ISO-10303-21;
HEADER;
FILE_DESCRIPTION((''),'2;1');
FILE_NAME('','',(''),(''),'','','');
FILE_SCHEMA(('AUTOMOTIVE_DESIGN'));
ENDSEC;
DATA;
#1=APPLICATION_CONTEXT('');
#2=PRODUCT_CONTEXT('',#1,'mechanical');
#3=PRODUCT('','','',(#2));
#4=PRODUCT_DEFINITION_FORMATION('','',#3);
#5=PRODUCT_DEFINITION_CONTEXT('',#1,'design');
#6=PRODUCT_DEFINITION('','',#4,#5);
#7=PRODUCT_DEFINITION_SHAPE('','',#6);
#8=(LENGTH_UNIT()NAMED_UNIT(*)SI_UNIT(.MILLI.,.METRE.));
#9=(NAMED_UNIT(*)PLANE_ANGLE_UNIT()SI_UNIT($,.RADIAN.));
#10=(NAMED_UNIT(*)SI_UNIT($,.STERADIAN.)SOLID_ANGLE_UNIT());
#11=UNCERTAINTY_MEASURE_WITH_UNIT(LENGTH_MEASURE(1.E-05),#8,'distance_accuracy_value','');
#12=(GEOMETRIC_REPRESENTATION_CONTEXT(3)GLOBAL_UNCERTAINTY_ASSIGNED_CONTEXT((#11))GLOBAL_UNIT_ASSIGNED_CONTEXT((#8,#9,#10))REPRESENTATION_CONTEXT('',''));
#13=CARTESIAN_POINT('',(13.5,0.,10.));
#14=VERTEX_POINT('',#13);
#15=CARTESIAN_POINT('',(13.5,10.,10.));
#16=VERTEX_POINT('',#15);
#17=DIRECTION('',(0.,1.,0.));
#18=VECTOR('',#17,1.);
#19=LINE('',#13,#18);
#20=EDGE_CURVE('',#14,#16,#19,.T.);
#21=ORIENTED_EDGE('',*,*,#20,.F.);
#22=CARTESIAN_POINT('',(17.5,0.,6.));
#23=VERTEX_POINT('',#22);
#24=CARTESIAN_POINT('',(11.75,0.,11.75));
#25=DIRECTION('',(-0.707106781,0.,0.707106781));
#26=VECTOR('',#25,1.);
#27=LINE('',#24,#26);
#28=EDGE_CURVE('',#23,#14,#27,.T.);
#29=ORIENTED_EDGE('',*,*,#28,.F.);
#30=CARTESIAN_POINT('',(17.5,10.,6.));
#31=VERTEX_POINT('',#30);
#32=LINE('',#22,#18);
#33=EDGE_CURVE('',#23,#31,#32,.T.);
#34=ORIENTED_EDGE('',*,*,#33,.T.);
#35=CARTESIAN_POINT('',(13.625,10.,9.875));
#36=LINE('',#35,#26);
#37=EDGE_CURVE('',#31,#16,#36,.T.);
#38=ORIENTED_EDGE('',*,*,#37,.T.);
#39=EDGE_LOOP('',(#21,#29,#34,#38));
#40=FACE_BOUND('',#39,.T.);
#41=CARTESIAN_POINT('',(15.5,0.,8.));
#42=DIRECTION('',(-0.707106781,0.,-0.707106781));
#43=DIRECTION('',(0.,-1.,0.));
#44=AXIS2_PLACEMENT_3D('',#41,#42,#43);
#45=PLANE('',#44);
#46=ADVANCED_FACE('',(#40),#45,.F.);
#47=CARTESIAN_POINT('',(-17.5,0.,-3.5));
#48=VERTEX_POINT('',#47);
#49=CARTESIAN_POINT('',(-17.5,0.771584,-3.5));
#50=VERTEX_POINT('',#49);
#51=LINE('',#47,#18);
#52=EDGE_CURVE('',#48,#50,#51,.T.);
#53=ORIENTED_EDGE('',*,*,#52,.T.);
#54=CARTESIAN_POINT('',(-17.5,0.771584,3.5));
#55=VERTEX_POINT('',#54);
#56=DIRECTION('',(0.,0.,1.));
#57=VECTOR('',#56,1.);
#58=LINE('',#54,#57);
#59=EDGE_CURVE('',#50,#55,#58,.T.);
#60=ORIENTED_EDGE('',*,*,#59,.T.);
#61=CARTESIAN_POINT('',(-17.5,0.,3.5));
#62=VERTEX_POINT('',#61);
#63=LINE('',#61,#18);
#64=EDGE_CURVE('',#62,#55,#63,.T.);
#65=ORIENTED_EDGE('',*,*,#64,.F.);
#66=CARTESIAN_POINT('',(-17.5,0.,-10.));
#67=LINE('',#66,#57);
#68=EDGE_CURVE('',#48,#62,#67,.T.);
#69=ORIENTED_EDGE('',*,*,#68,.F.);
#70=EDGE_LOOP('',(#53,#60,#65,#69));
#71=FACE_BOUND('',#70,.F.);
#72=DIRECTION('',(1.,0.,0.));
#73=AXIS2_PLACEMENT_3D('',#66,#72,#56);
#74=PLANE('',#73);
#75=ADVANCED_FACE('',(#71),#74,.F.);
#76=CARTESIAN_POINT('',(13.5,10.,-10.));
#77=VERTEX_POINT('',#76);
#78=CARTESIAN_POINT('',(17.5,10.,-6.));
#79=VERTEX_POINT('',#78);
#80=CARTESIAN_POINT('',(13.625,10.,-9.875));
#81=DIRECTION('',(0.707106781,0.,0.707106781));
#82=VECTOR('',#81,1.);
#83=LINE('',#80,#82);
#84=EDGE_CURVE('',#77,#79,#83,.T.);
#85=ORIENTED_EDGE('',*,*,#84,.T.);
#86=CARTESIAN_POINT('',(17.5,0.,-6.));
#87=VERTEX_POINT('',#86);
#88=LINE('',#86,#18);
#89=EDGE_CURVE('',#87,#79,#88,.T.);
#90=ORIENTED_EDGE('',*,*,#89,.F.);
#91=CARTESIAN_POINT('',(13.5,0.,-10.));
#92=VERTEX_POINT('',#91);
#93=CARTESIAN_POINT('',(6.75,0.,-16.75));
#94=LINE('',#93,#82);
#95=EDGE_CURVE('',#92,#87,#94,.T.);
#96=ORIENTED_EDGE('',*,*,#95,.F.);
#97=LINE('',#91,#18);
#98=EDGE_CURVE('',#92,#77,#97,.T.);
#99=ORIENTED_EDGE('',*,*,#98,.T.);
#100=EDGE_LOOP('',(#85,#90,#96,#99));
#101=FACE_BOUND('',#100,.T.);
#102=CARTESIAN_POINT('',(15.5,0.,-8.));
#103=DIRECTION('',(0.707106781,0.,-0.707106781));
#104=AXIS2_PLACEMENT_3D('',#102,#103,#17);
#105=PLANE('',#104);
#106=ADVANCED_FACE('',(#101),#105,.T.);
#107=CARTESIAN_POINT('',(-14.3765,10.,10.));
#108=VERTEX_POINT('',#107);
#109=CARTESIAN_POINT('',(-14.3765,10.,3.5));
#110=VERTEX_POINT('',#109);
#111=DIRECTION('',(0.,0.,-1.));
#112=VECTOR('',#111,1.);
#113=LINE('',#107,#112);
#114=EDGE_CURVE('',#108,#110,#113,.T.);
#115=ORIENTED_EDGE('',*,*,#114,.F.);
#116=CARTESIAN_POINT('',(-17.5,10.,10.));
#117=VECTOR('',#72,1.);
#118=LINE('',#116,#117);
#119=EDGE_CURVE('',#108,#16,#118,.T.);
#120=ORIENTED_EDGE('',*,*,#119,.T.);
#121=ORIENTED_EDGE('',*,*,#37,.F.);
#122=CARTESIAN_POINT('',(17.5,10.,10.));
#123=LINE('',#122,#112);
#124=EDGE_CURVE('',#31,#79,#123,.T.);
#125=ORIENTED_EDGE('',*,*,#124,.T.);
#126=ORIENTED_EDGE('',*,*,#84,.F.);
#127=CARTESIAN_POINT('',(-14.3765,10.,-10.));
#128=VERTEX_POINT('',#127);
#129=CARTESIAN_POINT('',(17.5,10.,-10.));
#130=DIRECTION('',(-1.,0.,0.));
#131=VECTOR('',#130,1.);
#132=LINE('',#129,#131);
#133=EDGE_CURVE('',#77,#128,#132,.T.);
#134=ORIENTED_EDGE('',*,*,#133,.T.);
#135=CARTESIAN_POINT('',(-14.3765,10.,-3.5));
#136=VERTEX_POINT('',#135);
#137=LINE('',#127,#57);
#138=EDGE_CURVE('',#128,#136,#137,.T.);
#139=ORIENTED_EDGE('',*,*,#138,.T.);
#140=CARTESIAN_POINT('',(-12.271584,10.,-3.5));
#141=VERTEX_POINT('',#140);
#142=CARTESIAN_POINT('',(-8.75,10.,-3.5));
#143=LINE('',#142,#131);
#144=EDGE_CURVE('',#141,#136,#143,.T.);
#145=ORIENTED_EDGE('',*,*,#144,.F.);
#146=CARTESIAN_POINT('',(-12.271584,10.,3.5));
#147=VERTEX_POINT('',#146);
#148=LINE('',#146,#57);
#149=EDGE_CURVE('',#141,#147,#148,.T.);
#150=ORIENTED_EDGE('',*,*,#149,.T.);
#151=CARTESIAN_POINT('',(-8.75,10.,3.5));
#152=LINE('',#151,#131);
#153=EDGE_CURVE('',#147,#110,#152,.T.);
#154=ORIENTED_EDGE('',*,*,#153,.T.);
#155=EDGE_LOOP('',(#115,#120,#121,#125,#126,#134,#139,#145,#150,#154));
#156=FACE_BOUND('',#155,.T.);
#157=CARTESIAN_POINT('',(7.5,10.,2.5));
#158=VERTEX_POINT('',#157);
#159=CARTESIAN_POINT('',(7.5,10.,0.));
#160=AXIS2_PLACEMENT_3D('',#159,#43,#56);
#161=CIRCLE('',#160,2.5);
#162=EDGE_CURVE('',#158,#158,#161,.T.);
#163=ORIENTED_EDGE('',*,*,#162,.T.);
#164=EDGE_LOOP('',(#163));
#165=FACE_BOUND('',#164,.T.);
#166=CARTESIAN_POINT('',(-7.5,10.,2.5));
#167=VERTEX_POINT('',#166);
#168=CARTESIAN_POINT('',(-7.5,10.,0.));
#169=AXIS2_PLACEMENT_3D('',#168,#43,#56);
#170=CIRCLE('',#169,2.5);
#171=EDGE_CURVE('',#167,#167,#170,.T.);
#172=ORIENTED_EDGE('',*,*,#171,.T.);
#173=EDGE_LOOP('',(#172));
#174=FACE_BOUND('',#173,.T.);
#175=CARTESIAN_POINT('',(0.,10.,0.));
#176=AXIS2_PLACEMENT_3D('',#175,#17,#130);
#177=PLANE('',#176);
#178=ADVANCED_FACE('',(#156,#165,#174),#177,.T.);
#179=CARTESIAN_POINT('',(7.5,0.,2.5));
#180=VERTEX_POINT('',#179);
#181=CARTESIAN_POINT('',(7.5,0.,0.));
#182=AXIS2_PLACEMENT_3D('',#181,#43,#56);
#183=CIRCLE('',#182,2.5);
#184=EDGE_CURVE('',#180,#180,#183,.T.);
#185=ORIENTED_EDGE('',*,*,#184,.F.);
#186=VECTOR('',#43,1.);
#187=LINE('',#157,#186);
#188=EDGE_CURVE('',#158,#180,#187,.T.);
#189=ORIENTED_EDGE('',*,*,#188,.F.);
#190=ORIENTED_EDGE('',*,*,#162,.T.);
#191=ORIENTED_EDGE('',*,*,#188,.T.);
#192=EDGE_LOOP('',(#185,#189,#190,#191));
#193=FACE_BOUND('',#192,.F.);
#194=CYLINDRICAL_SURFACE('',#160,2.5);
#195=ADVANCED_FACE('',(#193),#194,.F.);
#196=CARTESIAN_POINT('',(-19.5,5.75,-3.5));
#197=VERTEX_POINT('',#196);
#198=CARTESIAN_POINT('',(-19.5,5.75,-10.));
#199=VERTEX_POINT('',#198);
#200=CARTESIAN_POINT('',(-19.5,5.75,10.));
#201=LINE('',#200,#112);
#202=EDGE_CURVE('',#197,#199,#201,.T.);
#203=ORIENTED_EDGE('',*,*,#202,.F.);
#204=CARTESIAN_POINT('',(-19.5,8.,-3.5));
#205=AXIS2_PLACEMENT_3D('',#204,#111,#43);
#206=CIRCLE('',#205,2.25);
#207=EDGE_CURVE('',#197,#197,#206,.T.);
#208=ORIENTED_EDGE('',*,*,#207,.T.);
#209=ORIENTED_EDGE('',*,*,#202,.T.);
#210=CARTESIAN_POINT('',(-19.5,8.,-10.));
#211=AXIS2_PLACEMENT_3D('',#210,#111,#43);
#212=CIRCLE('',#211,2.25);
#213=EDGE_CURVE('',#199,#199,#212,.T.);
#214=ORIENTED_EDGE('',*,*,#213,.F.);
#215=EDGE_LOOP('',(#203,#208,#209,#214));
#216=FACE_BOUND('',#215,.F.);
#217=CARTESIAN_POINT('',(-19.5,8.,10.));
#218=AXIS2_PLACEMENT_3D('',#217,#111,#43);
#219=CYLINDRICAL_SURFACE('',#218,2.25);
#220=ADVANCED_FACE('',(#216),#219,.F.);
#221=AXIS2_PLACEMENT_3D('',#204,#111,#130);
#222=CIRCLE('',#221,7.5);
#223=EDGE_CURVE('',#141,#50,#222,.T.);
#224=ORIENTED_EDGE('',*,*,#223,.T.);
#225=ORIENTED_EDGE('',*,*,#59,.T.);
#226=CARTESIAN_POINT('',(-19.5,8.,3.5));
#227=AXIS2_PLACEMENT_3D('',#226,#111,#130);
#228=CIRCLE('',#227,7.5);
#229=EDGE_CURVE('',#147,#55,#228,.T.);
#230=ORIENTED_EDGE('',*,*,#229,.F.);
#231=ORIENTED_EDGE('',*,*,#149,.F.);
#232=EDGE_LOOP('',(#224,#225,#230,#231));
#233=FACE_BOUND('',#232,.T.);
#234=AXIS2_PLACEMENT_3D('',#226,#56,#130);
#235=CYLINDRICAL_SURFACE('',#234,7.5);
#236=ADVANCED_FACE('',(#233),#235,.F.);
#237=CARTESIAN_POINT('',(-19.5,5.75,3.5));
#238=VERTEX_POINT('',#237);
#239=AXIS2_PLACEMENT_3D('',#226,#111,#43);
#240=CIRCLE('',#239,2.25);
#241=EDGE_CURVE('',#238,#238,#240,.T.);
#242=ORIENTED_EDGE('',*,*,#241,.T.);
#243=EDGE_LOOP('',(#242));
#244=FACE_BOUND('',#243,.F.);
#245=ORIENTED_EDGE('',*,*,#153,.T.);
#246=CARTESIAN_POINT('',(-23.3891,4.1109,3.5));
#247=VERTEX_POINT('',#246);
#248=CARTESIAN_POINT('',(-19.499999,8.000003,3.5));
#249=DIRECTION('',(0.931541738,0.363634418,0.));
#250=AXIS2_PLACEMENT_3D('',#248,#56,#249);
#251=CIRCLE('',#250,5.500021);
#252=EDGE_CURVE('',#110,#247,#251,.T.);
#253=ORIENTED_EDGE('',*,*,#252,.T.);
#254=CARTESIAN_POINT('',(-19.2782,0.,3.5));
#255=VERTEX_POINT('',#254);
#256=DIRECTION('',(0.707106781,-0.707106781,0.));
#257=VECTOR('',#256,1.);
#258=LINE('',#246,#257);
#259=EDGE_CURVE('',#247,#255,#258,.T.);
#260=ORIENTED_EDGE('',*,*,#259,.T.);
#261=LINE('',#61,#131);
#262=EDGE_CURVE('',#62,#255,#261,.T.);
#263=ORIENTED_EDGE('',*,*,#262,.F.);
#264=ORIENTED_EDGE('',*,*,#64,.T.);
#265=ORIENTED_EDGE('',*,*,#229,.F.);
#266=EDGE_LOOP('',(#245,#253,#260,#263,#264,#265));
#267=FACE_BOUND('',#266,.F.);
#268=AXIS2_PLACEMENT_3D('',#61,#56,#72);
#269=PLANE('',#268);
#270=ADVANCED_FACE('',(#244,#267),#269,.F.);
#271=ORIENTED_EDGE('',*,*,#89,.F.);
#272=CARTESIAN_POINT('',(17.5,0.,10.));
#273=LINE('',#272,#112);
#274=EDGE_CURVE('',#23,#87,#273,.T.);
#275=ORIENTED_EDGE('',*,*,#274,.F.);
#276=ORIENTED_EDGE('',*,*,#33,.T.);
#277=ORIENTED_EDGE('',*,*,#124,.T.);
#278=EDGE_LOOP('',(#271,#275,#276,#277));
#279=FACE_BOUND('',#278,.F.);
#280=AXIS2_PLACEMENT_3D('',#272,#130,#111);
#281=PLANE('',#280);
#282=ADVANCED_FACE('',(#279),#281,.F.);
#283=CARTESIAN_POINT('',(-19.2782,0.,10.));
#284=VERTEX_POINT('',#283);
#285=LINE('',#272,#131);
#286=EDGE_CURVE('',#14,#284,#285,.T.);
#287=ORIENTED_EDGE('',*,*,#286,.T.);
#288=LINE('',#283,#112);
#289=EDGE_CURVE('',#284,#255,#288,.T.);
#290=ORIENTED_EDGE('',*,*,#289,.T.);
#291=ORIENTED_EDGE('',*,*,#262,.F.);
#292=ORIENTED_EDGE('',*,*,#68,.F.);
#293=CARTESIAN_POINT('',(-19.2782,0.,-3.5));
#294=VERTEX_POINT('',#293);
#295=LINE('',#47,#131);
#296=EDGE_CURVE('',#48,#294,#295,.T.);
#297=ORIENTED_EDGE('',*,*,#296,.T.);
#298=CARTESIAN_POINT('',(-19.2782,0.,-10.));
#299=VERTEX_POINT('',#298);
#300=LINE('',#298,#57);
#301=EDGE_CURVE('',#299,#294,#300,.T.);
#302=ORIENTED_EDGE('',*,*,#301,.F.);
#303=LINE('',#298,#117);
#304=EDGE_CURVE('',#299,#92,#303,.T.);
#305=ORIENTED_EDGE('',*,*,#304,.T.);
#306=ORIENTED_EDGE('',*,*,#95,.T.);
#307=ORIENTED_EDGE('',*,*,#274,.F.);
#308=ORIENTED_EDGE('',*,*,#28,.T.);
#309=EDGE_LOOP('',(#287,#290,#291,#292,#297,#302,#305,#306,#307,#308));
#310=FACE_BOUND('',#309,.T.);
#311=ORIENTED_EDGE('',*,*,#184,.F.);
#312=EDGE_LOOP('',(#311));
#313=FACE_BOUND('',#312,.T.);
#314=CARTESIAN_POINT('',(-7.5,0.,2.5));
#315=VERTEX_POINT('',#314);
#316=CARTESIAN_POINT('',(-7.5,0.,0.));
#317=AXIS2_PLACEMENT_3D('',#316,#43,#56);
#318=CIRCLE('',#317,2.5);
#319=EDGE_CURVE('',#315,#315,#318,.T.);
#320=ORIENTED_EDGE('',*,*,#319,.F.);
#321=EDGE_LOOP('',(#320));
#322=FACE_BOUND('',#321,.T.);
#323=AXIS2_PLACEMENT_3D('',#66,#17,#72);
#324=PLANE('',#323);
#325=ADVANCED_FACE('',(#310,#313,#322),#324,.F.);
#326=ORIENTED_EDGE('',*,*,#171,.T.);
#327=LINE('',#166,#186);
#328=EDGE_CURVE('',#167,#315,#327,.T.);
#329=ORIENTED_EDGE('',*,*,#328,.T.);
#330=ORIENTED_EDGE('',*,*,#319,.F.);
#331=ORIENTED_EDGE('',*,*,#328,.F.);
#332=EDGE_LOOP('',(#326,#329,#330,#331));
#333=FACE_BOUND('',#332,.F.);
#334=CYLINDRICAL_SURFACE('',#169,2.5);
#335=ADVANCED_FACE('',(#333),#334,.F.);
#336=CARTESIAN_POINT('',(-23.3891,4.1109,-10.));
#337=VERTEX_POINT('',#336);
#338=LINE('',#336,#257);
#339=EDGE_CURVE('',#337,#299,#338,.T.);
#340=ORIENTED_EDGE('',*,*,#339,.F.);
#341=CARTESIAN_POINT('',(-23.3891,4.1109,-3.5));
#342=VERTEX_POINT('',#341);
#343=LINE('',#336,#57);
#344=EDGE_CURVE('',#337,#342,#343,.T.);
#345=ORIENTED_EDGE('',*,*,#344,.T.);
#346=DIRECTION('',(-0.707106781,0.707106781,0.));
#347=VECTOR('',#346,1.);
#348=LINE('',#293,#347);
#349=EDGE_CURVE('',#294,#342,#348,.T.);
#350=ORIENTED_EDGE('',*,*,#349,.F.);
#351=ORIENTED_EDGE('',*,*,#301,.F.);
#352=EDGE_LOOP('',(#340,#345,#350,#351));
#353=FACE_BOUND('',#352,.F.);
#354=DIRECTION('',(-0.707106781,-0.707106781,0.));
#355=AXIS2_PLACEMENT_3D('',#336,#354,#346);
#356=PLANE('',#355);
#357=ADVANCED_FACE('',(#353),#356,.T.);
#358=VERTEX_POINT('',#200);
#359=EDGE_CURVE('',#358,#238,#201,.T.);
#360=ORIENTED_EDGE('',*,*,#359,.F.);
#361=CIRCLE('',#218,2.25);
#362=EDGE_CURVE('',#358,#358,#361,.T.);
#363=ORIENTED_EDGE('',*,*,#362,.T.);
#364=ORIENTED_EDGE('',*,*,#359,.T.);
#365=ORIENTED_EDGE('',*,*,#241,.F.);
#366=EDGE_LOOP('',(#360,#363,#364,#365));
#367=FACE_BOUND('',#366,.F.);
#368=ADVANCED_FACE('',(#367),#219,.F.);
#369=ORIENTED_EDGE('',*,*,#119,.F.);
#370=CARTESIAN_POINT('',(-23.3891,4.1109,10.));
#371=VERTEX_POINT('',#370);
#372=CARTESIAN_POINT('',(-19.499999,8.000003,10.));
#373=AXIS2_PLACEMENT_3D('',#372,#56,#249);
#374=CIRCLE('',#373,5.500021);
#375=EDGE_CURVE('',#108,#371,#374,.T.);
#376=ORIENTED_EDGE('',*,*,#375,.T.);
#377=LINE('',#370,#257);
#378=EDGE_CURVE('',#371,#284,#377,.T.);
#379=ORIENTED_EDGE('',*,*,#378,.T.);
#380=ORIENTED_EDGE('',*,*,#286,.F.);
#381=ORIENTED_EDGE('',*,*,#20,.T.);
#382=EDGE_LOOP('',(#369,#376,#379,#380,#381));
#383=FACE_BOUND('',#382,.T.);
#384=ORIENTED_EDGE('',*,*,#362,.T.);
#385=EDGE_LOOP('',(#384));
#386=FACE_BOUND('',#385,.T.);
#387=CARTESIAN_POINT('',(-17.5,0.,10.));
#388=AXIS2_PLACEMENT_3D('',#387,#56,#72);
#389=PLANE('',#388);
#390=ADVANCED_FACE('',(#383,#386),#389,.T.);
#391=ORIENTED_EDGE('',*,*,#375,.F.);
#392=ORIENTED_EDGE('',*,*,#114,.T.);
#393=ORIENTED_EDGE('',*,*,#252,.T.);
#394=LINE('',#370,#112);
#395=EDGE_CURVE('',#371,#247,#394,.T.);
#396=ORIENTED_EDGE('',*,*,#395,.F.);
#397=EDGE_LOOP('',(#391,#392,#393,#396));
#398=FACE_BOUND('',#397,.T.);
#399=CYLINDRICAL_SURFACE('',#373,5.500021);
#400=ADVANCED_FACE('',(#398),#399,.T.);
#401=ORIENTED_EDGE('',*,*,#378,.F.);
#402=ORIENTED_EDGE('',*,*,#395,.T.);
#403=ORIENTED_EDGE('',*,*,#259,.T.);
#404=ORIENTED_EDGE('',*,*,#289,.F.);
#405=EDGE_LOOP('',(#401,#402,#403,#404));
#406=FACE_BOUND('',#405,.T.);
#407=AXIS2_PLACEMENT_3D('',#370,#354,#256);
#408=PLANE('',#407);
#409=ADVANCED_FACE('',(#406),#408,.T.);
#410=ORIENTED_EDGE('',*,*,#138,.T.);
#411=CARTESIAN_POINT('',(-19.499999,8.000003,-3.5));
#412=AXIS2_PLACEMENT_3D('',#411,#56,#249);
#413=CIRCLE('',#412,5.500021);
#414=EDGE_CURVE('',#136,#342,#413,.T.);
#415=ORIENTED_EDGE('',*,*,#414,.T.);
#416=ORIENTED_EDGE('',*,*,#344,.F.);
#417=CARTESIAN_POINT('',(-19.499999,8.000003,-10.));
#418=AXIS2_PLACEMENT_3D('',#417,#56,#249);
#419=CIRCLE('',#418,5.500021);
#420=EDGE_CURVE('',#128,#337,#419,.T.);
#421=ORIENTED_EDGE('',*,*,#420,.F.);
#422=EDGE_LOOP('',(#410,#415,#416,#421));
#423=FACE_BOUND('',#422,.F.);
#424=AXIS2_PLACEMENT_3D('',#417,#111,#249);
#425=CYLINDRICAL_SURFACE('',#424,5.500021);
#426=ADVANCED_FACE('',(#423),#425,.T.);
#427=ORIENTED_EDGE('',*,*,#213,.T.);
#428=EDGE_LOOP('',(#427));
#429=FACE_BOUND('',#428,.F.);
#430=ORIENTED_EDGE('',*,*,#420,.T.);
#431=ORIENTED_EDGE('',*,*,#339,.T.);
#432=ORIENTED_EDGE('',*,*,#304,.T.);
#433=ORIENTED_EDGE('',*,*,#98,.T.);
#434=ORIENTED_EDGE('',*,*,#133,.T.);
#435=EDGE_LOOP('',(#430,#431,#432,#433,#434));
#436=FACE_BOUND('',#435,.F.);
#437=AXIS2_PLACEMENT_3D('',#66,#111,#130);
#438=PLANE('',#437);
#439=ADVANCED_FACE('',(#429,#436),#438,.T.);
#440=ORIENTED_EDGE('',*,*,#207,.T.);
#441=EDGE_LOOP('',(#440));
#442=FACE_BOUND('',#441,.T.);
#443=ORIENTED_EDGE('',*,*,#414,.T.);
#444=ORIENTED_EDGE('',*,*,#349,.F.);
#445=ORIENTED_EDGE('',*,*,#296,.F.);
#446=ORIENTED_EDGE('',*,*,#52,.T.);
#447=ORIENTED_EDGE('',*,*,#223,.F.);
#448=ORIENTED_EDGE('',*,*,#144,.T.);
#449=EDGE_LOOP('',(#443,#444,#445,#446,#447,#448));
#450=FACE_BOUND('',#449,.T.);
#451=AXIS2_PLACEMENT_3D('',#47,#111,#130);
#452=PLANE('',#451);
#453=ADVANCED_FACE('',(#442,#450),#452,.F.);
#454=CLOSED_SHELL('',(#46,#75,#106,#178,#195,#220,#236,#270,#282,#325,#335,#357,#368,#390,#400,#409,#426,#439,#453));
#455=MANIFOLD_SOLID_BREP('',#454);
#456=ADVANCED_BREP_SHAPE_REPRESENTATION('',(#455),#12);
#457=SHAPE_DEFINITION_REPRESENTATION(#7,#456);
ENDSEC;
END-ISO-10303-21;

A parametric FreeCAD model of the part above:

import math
import FreeCAD as App
import Part
import Sketcher
Q = App.Units.Quantity


def edges_at(feature, points):
    """Names of the edges that pass closest to the given points."""
    edges = feature.Shape.Edges
    near = lambda p: min(range(len(edges)), key=lambda i: edges[i].distToShape(Part.Vertex(*p))[0])
    return sorted({f"Edge{near(p) + 1}" for p in points})


def add_polygon(sketch, points):
    """Adds a closed chain of lines whose ends are joined by coincident constraints."""
    first, n = sketch.GeometryCount, len(points)
    for a, b in zip(points, points[1:] + points[:1]):
        sketch.addGeometry(Part.LineSegment(App.Vector(*a, 0), App.Vector(*b, 0)), False)
    for i in range(n):
        sketch.addConstraint(Sketcher.Constraint("Coincident", first + i, 2, first + (i + 1) % n, 1))

doc = App.newDocument("Part")
body = doc.addObject("PartDesign::Body", "Body")

sketch1 = body.newObject("Sketcher::SketchObject", "Sketch")
sketch1.AttachmentSupport = (doc.getObject("XZ_Plane"), [""])
sketch1.MapMode = "FlatFace"
add_polygon(sketch1, [(-18, -10), (-18, 10), (18, 10), (18, -10)])
sketch1.addConstraint([
    Sketcher.Constraint("Vertical", 0),
    Sketcher.Constraint("Horizontal", 1),
    Sketcher.Constraint("Vertical", 2),
    Sketcher.Constraint("Horizontal", 3),
    Sketcher.Constraint("Symmetric", 0, 2, 2, 2, -1, 1),
    Sketcher.Constraint("DistanceX", 1, 1, 1, 2, 35.0),
    Sketcher.Constraint("DistanceY", 0, 1, 0, 2, 20.0),
])
pad1 = body.newObject("PartDesign::Pad", "Pad")
pad1.Profile = sketch1
pad1.Length = 10
pad1.Reversed = True

sketch2 = body.newObject("Sketcher::SketchObject", "Sketch001")
sketch2.AttachmentSupport = (doc.getObject("XZ_Plane"), [""])
sketch2.MapMode = "FlatFace"
sketch2.AttachmentOffset = App.Placement(App.Vector(0, 0, -10), App.Rotation())
sketch2.addGeometry([
    Part.Circle(App.Vector(-7.5, 0, 0), App.Vector(0, 0, 1), 2.5),
    Part.Circle(App.Vector(7.5, 0, 0), App.Vector(0, 0, 1), 2.5),
], False)
sketch2.addConstraint([
    Sketcher.Constraint("Equal", 0, 1),
    Sketcher.Constraint("Symmetric", 0, 3, 1, 3, -1, 1),
    Sketcher.Constraint("PointOnObject", 0, 3, -1),
    Sketcher.Constraint("Diameter", 0, 5.0),
    Sketcher.Constraint("DistanceX", 0, 3, 1, 3, 15.0),
])
doc.recompute()
hole = body.newObject("PartDesign::Hole", "Hole")
hole.Profile = sketch2
hole.ThreadType = "None"
hole.Diameter = 5
hole.DepthType = "ThroughAll"
hole.Reversed = True

sketch3 = body.newObject("Sketcher::SketchObject", "Sketch002")
sketch3.AttachmentSupport = (doc.getObject("XY_Plane"), [""])
sketch3.MapMode = "FlatFace"
sketch3.AttachmentOffset = App.Placement(App.Vector(0, 0, 10), App.Rotation())
sketch3.addGeometry([
    Part.LineSegment(App.Vector(-17.5, 10, 0), App.Vector(-14.4, 10, 0)),
    Part.ArcOfCircle(Part.Circle(App.Vector(-19.5, 8, 0), App.Vector(0, 0, 1), 5.5), math.radians(21), math.radians(225)),
    Part.LineSegment(App.Vector(-23.4, 4.1, 0), App.Vector(-19.3, 0, 0)),
    Part.LineSegment(App.Vector(-19.3, 0, 0), App.Vector(-17.5, 0, 0)),
    Part.LineSegment(App.Vector(-17.5, 0, 0), App.Vector(-17.5, 10, 0)),
], False)
sketch3.addConstraint([
    Sketcher.Constraint("Coincident", 0, 2, 1, 1),
    Sketcher.Constraint("Tangent", 1, 2, 2, 1),
    Sketcher.Constraint("Coincident", 2, 2, 3, 1),
    Sketcher.Constraint("Coincident", 3, 2, 4, 1),
    Sketcher.Constraint("Coincident", 4, 2, 0, 1),
    Sketcher.Constraint("Horizontal", 0),
    Sketcher.Constraint("Horizontal", 3),
    Sketcher.Constraint("Vertical", 4),
    Sketcher.Constraint("PointOnObject", 2, 2, -1),
    Sketcher.Constraint("Radius", 1, 5.5),
    Sketcher.Constraint("DistanceY", -1, 1, 1, 3, 8.0),
    Sketcher.Constraint("DistanceY", 1, 3, 0, 2, 2.0),
    Sketcher.Constraint("DistanceX", 1, 3, 3, 2, 2.0),
    Sketcher.Constraint("Angle", 2, Q("-45 deg")),
    Sketcher.Constraint("DistanceX", 1, 3, -1, 1, 19.5),
])
pad2 = body.newObject("PartDesign::Pad", "Pad001")
pad2.Profile = sketch3
pad2.Length = 6.5
pad2.Reversed = True
doc.recompute()

mirrored = body.newObject("PartDesign::Mirrored", "Mirrored")
mirrored.Originals = [pad2]
mirrored.MirrorPlane = (doc.getObject("XY_Plane"), [""])
body.Tip = mirrored

sketch4 = body.newObject("Sketcher::SketchObject", "Sketch003")
sketch4.AttachmentSupport = (doc.getObject("XY_Plane"), [""])
sketch4.MapMode = "FlatFace"
sketch4.AttachmentOffset = App.Placement(App.Vector(0, 0, 3.5), App.Rotation())
sketch4.addGeometry(Part.Circle(App.Vector(-20, 8, 0), App.Vector(0, 0, 1), 8), False)
sketch4.addConstraint([
    Sketcher.Constraint("Diameter", 0, 15.0),
    Sketcher.Constraint("DistanceY", -1, 1, 0, 3, 8.0),
    Sketcher.Constraint("DistanceX", 0, 3, -1, 1, 19.5),
])
pocket1 = body.newObject("PartDesign::Pocket", "Pocket")
pocket1.Profile = sketch4
pocket1.Length = 7

sketch5 = body.newObject("Sketcher::SketchObject", "Sketch004")
sketch5.AttachmentSupport = (doc.getObject("XY_Plane"), [""])
sketch5.MapMode = "FlatFace"
sketch5.AttachmentOffset = App.Placement(App.Vector(0, 0, 10), App.Rotation())
sketch5.addGeometry(Part.Circle(App.Vector(-19.5, 8, 0), App.Vector(0, 0, 1), 2.2), False)
sketch5.addConstraint([
    Sketcher.Constraint("Diameter", 0, 4.5),
    Sketcher.Constraint("DistanceY", -1, 1, 0, 3, 8.0),
    Sketcher.Constraint("DistanceX", 0, 3, -1, 1, 19.5),
])
doc.recompute()
hole2 = body.newObject("PartDesign::Hole", "Hole001")
hole2.Profile = sketch5
hole2.ThreadType = "None"
hole2.Diameter = 4.5
hole2.DepthType = "ThroughAll"
doc.recompute()

chamfer = body.newObject("PartDesign::Chamfer", "Chamfer")
chamfer.Base = (hole2, edges_at(hole2, [(17.5, 5, 10), (17.5, 5, -10)]))
chamfer.Size = 4

doc.recompute()
